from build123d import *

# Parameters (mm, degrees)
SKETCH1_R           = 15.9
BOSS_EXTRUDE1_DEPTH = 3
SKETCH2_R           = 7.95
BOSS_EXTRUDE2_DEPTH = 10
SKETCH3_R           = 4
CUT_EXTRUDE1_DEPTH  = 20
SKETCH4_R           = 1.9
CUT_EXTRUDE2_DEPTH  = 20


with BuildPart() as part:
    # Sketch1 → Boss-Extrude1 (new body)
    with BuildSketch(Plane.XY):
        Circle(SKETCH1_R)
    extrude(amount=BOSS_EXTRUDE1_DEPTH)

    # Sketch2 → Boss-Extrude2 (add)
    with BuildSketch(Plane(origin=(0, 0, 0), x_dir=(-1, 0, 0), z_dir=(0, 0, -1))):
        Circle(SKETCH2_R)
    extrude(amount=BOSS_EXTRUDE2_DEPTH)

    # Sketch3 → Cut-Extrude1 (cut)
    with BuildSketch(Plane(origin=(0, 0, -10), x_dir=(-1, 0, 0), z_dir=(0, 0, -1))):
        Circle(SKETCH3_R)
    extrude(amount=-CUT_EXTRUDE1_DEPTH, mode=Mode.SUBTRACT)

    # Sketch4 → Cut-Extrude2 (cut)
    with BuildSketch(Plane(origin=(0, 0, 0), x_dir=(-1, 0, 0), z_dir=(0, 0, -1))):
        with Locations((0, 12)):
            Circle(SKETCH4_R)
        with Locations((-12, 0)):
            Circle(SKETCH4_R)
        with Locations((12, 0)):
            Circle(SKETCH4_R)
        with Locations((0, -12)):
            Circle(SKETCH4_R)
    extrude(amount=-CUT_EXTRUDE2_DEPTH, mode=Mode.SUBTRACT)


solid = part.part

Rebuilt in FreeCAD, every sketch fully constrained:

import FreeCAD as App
import Part
import Sketcher
from FreeCAD import Vector

doc = App.newDocument("Part")
body = doc.addObject("PartDesign::Body", "Body")

# Sketch on XY plane
sketch1 = doc.addObject("Sketcher::SketchObject", "Sketch")
body.addObject(sketch1)
sketch1.AttachmentSupport = (doc.XY_Plane, [""])
sketch1.MapMode = "FlatFace"
sketch1.addGeometry(Part.Circle(Vector(0, 0, 0), Vector(0, 0, 1), 15.9), False)
sketch1.addConstraint([
    Sketcher.Constraint("Coincident", 0, 3, -1, 1),
    Sketcher.Constraint("Diameter", 0, 31.8),
])
pad1 = doc.addObject("PartDesign::Pad", "Pad")
body.addObject(pad1)
pad1.Profile = sketch1
pad1.Length = 3

# Sketch on XY plane
sketch2 = doc.addObject("Sketcher::SketchObject", "Sketch001")
body.addObject(sketch2)
sketch2.AttachmentSupport = (doc.XY_Plane, [""])
sketch2.MapMode = "FlatFace"
sketch2.addGeometry(Part.Circle(Vector(0, 0, 0), Vector(0, 0, 1), 7.95), False)
sketch2.addConstraint([
    Sketcher.Constraint("Coincident", 0, 3, -1, 1),
    Sketcher.Constraint("Diameter", 0, 15.9),
])
pad2 = doc.addObject("PartDesign::Pad", "Pad001")
body.addObject(pad2)
pad2.Profile = sketch2
pad2.Length = 10
pad2.Reversed = True

# Sketch on XY plane
sketch3 = doc.addObject("Sketcher::SketchObject", "Sketch002")
body.addObject(sketch3)
sketch3.AttachmentSupport = (doc.XY_Plane, [""])
sketch3.MapMode = "FlatFace"
sketch3.AttachmentOffset = App.Placement(Vector(0, 0, -10), App.Rotation())
sketch3.addGeometry(Part.Circle(Vector(0, 0, 0), Vector(0, 0, 1), 4), False)
sketch3.addConstraint([
    Sketcher.Constraint("Coincident", 0, 3, -1, 1),
    Sketcher.Constraint("Diameter", 0, 8.0),
])
pocket1 = doc.addObject("PartDesign::Pocket", "Pocket")
body.addObject(pocket1)
pocket1.Profile = sketch3
pocket1.Length = 20
pocket1.Reversed = True

# Sketch on XY plane
sketch4 = doc.addObject("Sketcher::SketchObject", "Sketch003")
body.addObject(sketch4)
sketch4.AttachmentSupport = (doc.XY_Plane, [""])
sketch4.MapMode = "FlatFace"
sketch4.addGeometry([
    Part.Circle(Vector(0, 12, 0), Vector(0, 0, 1), 1.9),
    Part.Circle(Vector(12, 0, 0), Vector(0, 0, 1), 1.9),
    Part.Circle(Vector(-12, 0, 0), Vector(0, 0, 1), 1.9),
    Part.Circle(Vector(0, -12, 0), Vector(0, 0, 1), 1.9),
], False)
sketch4.addConstraint([
    Sketcher.Constraint("Equal", 0, 1),
    Sketcher.Constraint("Equal", 1, 2),
    Sketcher.Constraint("Equal", 2, 3),
    Sketcher.Constraint("Symmetric", 1, 3, 2, 3, -1, 1),
    Sketcher.Constraint("Symmetric", 0, 3, 3, 3, -1, 1),
    Sketcher.Constraint("PointOnObject", 0, 3, -2),
    Sketcher.Constraint("PointOnObject", 1, 3, -1),
    Sketcher.Constraint("Diameter", 0, 3.8),
    Sketcher.Constraint("DistanceY", -1, 1, 0, 3, 12.0),
    Sketcher.Constraint("DistanceX", -1, 1, 1, 3, 12.0),
])
pocket2 = doc.addObject("PartDesign::Pocket", "Pocket001")
body.addObject(pocket2)
pocket2.Profile = sketch4
pocket2.Length = 20
pocket2.Reversed = True

doc.recompute()
